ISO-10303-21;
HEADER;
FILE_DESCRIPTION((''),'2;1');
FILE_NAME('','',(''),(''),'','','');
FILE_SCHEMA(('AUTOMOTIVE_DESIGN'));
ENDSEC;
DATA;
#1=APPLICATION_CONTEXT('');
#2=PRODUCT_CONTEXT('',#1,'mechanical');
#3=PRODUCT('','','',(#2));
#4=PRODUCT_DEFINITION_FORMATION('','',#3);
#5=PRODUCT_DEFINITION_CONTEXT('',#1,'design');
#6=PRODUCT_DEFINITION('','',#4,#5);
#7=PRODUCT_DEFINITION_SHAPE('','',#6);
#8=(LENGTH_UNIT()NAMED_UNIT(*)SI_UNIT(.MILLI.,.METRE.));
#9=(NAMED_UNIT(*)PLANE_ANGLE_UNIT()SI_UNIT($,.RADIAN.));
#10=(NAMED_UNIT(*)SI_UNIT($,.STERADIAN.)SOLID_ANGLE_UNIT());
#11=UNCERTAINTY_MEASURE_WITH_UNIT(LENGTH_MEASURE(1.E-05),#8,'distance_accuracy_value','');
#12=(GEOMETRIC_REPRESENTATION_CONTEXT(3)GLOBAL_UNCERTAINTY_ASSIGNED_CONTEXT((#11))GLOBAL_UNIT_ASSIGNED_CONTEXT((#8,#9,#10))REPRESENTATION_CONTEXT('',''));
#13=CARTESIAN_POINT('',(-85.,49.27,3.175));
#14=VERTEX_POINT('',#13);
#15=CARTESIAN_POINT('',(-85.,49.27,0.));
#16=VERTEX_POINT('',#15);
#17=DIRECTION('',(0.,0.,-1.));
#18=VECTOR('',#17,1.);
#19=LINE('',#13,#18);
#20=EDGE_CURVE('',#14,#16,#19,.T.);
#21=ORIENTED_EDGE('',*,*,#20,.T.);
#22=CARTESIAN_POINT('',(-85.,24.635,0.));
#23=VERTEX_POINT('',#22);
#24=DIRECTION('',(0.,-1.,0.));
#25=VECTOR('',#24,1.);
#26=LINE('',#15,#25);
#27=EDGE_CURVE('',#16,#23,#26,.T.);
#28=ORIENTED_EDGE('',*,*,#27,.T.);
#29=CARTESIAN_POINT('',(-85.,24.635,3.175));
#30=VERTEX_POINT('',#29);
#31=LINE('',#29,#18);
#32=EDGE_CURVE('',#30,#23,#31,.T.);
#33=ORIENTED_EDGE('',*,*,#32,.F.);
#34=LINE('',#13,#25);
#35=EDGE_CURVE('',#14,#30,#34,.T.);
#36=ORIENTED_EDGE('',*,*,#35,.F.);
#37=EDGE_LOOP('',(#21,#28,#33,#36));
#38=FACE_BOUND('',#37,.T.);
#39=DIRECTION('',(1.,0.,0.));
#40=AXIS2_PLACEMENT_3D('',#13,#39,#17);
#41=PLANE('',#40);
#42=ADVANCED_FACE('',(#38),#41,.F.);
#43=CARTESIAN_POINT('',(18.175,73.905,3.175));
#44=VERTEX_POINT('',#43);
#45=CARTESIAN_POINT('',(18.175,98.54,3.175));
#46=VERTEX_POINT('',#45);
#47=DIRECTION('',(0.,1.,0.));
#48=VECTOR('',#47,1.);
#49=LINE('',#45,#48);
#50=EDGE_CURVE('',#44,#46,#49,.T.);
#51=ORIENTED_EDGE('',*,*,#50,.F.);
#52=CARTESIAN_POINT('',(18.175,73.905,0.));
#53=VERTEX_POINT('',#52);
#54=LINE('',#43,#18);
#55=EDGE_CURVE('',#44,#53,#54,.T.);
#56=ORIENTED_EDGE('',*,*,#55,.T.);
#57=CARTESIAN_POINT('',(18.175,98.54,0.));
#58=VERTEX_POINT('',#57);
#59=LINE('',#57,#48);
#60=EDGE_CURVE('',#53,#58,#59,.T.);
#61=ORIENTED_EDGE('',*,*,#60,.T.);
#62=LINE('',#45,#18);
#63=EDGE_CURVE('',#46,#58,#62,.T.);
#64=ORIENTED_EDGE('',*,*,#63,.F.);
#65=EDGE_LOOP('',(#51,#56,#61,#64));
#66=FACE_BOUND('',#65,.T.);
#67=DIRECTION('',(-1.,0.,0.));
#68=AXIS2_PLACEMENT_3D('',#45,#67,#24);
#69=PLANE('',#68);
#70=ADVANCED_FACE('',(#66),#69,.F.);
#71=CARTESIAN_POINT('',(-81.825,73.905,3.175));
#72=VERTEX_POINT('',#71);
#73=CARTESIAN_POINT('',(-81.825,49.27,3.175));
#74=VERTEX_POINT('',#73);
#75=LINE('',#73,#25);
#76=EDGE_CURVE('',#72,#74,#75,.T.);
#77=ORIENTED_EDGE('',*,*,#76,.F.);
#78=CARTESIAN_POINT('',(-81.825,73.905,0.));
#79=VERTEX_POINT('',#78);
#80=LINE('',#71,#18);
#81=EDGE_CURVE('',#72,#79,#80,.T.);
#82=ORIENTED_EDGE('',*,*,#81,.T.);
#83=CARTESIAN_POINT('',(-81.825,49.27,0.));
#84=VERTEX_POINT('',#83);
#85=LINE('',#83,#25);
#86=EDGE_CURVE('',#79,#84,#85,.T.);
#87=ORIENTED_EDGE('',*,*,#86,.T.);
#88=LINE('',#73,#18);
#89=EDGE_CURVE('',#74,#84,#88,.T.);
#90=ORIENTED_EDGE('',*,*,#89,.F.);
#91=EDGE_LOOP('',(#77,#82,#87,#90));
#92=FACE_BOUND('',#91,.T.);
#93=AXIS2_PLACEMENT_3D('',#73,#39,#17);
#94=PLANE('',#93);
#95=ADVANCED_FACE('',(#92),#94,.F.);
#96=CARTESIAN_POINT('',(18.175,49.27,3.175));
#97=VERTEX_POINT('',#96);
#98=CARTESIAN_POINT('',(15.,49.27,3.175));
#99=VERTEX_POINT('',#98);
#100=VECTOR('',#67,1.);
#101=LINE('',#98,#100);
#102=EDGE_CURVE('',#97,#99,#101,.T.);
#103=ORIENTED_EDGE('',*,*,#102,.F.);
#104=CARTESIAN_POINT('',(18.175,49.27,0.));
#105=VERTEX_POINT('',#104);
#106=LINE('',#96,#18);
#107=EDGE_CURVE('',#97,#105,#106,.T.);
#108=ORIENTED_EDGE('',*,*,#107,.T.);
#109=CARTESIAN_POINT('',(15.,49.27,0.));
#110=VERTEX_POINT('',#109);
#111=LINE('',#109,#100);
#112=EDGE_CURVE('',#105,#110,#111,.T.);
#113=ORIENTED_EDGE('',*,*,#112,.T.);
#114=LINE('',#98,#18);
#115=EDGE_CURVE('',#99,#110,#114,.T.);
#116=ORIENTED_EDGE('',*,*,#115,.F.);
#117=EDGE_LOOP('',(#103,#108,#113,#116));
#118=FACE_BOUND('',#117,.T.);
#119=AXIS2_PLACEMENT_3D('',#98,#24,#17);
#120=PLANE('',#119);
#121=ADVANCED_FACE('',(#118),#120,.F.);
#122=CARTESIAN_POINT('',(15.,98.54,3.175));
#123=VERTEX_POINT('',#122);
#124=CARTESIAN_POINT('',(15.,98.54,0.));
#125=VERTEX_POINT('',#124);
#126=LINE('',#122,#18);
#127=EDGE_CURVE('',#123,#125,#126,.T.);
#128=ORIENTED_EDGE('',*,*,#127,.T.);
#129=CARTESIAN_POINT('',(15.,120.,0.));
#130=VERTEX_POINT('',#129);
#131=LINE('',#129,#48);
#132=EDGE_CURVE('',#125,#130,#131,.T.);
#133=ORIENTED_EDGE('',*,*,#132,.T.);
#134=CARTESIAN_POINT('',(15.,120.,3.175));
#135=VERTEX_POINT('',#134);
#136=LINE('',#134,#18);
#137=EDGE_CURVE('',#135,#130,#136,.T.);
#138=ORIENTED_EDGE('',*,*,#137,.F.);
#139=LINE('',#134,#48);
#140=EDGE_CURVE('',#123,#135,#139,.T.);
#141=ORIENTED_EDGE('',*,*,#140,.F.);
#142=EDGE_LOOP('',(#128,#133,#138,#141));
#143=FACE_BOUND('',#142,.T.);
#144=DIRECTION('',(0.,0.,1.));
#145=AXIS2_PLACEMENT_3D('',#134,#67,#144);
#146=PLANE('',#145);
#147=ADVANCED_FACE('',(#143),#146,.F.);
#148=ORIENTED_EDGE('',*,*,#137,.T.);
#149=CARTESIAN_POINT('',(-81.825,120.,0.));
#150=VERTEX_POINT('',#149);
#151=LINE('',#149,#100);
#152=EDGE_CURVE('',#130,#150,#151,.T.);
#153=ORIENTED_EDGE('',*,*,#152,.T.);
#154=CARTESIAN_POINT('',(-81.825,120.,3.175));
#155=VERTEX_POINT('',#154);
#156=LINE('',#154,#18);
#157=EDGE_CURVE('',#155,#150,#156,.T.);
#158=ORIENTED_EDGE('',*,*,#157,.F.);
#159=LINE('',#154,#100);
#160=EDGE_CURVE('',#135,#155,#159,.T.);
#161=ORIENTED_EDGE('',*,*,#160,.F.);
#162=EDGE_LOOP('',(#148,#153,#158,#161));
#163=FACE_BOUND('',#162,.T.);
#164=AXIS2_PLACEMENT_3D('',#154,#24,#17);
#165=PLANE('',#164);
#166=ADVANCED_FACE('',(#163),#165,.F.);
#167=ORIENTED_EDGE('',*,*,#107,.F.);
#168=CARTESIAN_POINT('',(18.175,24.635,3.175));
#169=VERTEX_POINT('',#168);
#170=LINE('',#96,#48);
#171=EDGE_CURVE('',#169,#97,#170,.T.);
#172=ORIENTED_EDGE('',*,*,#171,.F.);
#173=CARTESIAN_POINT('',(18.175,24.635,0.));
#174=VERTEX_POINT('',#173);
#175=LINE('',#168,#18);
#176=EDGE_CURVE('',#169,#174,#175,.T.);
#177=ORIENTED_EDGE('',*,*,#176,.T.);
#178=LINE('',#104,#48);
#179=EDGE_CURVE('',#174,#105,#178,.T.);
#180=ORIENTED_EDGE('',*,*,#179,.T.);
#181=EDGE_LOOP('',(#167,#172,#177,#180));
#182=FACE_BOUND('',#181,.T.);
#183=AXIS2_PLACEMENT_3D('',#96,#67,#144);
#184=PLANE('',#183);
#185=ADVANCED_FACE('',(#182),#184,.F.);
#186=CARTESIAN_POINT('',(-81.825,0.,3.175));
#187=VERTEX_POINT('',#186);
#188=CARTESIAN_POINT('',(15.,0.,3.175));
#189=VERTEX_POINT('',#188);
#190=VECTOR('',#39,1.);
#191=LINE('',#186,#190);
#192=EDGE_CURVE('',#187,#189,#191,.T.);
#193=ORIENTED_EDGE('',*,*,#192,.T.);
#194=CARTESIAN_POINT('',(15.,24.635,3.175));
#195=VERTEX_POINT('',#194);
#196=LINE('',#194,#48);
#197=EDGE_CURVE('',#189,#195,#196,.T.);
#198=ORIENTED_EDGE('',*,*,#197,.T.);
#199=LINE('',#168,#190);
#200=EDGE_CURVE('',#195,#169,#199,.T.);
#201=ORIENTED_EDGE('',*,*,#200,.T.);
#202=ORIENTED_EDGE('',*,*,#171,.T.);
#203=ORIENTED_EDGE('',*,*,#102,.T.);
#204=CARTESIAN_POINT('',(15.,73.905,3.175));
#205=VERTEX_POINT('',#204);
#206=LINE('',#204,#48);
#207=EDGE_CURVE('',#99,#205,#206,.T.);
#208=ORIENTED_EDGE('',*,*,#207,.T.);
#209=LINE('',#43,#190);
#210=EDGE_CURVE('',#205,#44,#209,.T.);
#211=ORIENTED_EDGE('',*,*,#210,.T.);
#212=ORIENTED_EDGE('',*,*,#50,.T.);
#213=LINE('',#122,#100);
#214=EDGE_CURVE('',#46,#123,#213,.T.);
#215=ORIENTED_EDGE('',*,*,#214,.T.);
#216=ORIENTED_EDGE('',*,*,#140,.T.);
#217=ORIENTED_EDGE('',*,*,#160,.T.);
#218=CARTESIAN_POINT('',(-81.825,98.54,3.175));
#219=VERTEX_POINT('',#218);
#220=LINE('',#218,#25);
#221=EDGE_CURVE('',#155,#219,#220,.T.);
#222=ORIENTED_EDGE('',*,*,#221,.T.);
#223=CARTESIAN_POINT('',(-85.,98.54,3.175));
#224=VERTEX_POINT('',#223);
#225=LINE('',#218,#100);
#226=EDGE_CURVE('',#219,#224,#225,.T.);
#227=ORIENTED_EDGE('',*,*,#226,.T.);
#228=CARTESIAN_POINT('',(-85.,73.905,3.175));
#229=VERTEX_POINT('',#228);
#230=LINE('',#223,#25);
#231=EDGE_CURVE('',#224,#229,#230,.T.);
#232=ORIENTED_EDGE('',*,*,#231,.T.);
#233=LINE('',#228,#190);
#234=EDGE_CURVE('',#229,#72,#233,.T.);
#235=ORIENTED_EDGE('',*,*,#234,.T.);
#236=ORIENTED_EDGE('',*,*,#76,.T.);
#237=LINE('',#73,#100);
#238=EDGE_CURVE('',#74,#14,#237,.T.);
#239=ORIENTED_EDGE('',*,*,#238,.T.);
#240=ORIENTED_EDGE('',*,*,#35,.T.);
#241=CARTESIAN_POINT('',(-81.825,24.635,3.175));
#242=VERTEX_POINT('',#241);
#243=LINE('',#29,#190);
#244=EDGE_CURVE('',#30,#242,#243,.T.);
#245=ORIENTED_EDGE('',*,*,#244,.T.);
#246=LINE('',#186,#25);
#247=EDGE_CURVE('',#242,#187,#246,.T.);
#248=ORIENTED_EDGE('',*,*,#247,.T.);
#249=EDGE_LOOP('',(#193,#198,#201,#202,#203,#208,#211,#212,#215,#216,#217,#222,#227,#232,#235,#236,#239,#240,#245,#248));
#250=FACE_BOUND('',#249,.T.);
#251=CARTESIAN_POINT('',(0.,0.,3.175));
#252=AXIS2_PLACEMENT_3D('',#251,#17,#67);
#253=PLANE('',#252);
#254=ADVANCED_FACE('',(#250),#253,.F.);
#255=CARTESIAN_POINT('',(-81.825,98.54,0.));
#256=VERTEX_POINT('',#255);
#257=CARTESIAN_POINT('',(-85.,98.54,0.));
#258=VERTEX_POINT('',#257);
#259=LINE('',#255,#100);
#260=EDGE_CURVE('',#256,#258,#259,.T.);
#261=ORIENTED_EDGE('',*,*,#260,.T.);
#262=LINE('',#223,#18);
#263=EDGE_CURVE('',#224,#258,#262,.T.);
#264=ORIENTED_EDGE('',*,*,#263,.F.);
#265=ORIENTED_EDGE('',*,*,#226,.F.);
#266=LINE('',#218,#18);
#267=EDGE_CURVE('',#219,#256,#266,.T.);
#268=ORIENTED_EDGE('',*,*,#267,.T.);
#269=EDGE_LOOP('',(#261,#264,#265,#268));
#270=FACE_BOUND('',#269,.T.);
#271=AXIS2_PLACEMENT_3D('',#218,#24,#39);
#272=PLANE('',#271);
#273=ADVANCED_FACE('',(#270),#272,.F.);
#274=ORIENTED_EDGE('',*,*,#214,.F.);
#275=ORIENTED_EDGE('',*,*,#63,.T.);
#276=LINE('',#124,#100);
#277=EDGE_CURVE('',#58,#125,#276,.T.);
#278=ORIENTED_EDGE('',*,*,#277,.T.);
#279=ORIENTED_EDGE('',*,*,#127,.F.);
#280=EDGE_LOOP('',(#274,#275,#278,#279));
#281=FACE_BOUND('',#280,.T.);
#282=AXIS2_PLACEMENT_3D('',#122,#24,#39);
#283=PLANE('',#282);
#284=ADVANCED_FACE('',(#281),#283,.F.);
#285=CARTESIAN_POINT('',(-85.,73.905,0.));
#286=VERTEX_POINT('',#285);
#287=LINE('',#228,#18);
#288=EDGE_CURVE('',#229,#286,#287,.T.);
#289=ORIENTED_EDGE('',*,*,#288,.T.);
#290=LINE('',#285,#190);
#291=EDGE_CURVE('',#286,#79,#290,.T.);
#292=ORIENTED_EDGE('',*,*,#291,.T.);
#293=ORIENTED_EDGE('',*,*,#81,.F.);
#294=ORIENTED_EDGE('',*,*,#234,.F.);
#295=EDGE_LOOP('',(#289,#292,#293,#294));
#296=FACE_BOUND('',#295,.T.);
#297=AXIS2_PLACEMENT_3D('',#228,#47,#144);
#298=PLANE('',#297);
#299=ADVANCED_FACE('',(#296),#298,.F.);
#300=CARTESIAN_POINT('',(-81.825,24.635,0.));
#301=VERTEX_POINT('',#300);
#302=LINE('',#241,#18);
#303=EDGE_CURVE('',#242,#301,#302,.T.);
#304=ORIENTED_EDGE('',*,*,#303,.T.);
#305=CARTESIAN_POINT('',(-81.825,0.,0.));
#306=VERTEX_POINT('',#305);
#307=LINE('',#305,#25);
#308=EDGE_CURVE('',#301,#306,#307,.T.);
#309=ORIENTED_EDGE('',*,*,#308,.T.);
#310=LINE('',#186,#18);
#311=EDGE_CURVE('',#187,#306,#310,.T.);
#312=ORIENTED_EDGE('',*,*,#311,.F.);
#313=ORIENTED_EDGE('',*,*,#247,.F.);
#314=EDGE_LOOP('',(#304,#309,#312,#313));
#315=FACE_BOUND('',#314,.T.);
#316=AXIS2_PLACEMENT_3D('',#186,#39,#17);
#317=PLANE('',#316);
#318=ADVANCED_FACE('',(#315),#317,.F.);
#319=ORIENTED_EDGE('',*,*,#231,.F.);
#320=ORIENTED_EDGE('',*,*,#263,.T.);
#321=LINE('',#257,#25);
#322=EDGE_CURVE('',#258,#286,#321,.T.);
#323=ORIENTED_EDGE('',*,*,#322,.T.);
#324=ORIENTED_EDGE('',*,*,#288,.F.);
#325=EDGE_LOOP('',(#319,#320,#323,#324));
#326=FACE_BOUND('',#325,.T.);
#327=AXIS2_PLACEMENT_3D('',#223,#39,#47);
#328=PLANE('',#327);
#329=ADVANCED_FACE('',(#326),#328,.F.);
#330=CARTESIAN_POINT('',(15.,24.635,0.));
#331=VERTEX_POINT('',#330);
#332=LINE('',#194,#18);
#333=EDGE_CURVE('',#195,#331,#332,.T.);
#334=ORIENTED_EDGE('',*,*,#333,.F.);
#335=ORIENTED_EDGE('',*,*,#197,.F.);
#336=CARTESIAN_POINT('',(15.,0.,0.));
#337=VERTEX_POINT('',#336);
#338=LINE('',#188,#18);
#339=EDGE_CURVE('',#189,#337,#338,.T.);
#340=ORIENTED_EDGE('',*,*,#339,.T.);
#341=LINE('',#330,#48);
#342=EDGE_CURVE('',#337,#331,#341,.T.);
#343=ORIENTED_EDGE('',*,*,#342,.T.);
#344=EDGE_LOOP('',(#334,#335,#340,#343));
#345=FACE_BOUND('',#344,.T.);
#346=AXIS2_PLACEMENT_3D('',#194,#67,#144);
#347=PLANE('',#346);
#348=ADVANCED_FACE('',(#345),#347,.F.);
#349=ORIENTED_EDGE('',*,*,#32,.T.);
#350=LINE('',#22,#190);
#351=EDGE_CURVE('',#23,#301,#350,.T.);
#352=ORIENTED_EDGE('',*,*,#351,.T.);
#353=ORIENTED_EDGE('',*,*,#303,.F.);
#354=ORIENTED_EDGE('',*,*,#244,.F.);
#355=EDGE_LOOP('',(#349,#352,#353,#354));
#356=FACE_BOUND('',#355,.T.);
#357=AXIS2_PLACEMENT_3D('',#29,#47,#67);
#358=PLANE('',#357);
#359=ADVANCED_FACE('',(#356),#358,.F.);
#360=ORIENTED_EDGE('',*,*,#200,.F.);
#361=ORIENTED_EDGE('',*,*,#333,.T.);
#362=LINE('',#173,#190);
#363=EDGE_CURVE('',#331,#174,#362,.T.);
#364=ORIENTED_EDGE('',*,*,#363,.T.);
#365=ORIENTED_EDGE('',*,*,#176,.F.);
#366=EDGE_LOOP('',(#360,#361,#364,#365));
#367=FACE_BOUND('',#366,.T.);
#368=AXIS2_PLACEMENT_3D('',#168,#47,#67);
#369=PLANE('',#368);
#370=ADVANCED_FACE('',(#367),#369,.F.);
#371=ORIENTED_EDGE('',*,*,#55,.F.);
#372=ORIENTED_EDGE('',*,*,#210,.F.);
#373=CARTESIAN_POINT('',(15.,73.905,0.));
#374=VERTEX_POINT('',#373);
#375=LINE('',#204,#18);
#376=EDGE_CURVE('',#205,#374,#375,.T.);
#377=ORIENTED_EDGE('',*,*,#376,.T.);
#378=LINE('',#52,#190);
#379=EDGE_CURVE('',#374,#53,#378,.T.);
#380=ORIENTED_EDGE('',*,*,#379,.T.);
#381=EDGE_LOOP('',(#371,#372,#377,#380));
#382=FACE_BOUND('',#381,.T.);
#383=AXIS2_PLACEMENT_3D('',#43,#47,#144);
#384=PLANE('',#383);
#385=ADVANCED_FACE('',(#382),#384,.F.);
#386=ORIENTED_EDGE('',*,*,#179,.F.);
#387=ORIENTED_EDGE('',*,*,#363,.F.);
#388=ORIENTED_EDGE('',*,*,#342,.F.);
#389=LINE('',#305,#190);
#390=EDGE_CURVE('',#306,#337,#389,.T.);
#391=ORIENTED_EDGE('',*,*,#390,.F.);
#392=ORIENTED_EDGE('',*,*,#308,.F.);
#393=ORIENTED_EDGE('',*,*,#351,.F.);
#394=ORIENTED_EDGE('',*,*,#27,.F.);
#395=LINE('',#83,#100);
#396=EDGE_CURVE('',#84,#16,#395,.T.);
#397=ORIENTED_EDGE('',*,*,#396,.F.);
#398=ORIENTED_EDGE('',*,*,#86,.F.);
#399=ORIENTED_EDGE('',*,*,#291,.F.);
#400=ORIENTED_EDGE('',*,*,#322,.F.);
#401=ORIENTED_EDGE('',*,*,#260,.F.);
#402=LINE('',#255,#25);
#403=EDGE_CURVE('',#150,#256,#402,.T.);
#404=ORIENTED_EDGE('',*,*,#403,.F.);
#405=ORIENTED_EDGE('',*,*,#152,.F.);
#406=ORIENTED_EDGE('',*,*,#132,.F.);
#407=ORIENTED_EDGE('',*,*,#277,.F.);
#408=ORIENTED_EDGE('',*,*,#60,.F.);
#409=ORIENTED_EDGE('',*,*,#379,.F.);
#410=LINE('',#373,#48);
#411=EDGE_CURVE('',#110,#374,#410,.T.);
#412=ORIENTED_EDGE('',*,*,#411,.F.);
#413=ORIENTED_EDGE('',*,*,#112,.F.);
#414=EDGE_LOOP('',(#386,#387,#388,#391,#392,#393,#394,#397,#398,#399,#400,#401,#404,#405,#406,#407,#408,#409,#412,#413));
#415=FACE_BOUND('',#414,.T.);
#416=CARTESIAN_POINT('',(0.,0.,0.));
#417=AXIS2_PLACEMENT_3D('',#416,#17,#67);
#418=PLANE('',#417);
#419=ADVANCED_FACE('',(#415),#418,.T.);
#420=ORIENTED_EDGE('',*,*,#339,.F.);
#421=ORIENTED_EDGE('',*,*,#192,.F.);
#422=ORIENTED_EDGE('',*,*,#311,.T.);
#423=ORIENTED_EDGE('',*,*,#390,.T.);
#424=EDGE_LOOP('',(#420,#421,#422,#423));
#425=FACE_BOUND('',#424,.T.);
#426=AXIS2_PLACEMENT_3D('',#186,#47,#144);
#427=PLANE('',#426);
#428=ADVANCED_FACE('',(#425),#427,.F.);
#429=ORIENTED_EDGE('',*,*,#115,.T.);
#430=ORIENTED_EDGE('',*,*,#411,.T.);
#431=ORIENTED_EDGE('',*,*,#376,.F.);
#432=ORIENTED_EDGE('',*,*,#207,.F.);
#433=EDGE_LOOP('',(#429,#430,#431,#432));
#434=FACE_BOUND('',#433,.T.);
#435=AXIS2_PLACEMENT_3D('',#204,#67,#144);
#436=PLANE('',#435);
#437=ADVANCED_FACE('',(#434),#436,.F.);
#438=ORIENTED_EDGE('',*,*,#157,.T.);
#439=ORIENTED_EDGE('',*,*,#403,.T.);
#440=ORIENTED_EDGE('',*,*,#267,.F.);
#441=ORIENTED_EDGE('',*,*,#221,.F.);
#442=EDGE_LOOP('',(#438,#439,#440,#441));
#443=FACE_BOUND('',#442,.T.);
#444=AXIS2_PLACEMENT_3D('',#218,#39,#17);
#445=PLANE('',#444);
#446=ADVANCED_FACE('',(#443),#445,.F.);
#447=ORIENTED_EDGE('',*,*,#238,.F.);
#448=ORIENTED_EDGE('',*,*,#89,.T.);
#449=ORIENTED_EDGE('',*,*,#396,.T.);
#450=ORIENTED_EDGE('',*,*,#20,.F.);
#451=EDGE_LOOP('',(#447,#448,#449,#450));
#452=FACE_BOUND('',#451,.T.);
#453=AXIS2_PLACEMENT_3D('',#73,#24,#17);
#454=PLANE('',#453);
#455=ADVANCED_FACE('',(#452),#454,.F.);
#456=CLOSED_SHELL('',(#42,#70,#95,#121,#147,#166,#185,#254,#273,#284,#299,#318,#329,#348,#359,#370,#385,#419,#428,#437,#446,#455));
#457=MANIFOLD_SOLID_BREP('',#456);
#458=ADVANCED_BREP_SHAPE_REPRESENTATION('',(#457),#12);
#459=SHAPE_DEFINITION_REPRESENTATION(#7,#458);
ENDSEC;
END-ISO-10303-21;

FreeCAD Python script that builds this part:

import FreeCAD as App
import Part
import Sketcher

V = App.Vector
Q = App.Units.Quantity


def add_polygon(sketch, points):
    """Adds a closed chain of lines whose ends are joined by coincident constraints."""
    first, n = sketch.GeometryCount, len(points)
    for a, b in zip(points, points[1:] + points[:1]):
        sketch.addGeometry(Part.LineSegment(App.Vector(*a, 0), App.Vector(*b, 0)), False)
    for i in range(n):
        sketch.addConstraint(Sketcher.Constraint("Coincident", first + i, 2, first + (i + 1) % n, 1))

doc = App.newDocument("Part")
body = doc.addObject("PartDesign::Body", "Body")

# Sketch on XY plane
sketch1 = doc.addObject("Sketcher::SketchObject", "Sketch")
body.addObject(sketch1)
sketch1.AttachmentSupport = (doc.XY_Plane, [""])
sketch1.MapMode = "FlatFace"
add_polygon(sketch1, [(-81.8, 0), (15, 0), (15, 24.6), (18.2, 24.6), (18.2, 49.3), (15, 49.3), (15, 73.9), (18.2, 73.9), (18.2, 98.5), (15, 98.5), (15, 120), (-81.8, 120), (-81.8, 98.5), (-85, 98.5), (-85, 73.9), (-81.8, 73.9), (-81.8, 49.3), (-85, 49.3), (-85, 24.6), (-81.8, 24.6)])  # lines 0-19
sketch1.addConstraint(Sketcher.Constraint("Horizontal", 0))
sketch1.addConstraint(Sketcher.Constraint("Vertical", 1))
sketch1.addConstraint(Sketcher.Constraint("Horizontal", 2))
sketch1.addConstraint(Sketcher.Constraint("Vertical", 3))
sketch1.addConstraint(Sketcher.Constraint("Horizontal", 4))
sketch1.addConstraint(Sketcher.Constraint("Vertical", 5))
sketch1.addConstraint(Sketcher.Constraint("Horizontal", 6))
sketch1.addConstraint(Sketcher.Constraint("Vertical", 7))
sketch1.addConstraint(Sketcher.Constraint("Horizontal", 8))
sketch1.addConstraint(Sketcher.Constraint("Vertical", 9))
sketch1.addConstraint(Sketcher.Constraint("Horizontal", 10))
sketch1.addConstraint(Sketcher.Constraint("Vertical", 11))
sketch1.addConstraint(Sketcher.Constraint("Horizontal", 12))
sketch1.addConstraint(Sketcher.Constraint("Vertical", 13))
sketch1.addConstraint(Sketcher.Constraint("Horizontal", 14))
sketch1.addConstraint(Sketcher.Constraint("Vertical", 15))
sketch1.addConstraint(Sketcher.Constraint("Horizontal", 16))
sketch1.addConstraint(Sketcher.Constraint("Vertical", 17))
sketch1.addConstraint(Sketcher.Constraint("Horizontal", 18))
sketch1.addConstraint(Sketcher.Constraint("Vertical", 19))
sketch1.addConstraint(Sketcher.Constraint("PointOnObject", 0, 2, -1))
sketch1.addConstraint(Sketcher.Constraint("Horizontal", 8, 2, 11, 2))
sketch1.addConstraint(Sketcher.Constraint("Horizontal", 6, 2, 13, 2))
sketch1.addConstraint(Sketcher.Constraint("Horizontal", 4, 2, 15, 2))
sketch1.addConstraint(Sketcher.Constraint("Horizontal", 2, 2, 17, 2))
sketch1.addConstraint(Sketcher.Constraint("Vertical", 1, 2, 4, 2))
sketch1.addConstraint(Sketcher.Constraint("Vertical", 3, 2, 6, 2))
sketch1.addConstraint(Sketcher.Constraint("Vertical", 5, 2, 8, 2))
sketch1.addConstraint(Sketcher.Constraint("Vertical", 11, 2, 14, 2))
sketch1.addConstraint(Sketcher.Constraint("Vertical", 13, 2, 16, 2))
sketch1.addConstraint(Sketcher.Constraint("Vertical", 15, 2, 18, 2))
sketch1.addConstraint(Sketcher.Constraint("Equal", 8, 12))
sketch1.addConstraint(Sketcher.Constraint("Equal", 1, 3))
sketch1.addConstraint(Sketcher.Constraint("Equal", 3, 5))
sketch1.addConstraint(Sketcher.Constraint("Equal", 5, 7))
sketch1.addConstraint(Sketcher.Constraint("DistanceX", 2, 1, 2, 2, Q("0.125 in")))
sketch1.addConstraint(Sketcher.Constraint("DistanceX", 0, 1, 0, 2, Q("96.825 mm")))
sketch1.addConstraint(Sketcher.Constraint("DistanceY", 1, 1, 1, 2, Q("24.635 mm")))
sketch1.addConstraint(Sketcher.Constraint("DistanceY", 9, 1, 9, 2, Q("21.46 mm")))
sketch1.addConstraint(Sketcher.Constraint("DistanceX", -1, 1, 0, 2, Q("15 mm")))
pad1 = doc.addObject("PartDesign::Pad", "Pad")
body.addObject(pad1)
pad1.Profile = sketch1
pad1.Length = Q("0.125 in")

doc.recompute()
